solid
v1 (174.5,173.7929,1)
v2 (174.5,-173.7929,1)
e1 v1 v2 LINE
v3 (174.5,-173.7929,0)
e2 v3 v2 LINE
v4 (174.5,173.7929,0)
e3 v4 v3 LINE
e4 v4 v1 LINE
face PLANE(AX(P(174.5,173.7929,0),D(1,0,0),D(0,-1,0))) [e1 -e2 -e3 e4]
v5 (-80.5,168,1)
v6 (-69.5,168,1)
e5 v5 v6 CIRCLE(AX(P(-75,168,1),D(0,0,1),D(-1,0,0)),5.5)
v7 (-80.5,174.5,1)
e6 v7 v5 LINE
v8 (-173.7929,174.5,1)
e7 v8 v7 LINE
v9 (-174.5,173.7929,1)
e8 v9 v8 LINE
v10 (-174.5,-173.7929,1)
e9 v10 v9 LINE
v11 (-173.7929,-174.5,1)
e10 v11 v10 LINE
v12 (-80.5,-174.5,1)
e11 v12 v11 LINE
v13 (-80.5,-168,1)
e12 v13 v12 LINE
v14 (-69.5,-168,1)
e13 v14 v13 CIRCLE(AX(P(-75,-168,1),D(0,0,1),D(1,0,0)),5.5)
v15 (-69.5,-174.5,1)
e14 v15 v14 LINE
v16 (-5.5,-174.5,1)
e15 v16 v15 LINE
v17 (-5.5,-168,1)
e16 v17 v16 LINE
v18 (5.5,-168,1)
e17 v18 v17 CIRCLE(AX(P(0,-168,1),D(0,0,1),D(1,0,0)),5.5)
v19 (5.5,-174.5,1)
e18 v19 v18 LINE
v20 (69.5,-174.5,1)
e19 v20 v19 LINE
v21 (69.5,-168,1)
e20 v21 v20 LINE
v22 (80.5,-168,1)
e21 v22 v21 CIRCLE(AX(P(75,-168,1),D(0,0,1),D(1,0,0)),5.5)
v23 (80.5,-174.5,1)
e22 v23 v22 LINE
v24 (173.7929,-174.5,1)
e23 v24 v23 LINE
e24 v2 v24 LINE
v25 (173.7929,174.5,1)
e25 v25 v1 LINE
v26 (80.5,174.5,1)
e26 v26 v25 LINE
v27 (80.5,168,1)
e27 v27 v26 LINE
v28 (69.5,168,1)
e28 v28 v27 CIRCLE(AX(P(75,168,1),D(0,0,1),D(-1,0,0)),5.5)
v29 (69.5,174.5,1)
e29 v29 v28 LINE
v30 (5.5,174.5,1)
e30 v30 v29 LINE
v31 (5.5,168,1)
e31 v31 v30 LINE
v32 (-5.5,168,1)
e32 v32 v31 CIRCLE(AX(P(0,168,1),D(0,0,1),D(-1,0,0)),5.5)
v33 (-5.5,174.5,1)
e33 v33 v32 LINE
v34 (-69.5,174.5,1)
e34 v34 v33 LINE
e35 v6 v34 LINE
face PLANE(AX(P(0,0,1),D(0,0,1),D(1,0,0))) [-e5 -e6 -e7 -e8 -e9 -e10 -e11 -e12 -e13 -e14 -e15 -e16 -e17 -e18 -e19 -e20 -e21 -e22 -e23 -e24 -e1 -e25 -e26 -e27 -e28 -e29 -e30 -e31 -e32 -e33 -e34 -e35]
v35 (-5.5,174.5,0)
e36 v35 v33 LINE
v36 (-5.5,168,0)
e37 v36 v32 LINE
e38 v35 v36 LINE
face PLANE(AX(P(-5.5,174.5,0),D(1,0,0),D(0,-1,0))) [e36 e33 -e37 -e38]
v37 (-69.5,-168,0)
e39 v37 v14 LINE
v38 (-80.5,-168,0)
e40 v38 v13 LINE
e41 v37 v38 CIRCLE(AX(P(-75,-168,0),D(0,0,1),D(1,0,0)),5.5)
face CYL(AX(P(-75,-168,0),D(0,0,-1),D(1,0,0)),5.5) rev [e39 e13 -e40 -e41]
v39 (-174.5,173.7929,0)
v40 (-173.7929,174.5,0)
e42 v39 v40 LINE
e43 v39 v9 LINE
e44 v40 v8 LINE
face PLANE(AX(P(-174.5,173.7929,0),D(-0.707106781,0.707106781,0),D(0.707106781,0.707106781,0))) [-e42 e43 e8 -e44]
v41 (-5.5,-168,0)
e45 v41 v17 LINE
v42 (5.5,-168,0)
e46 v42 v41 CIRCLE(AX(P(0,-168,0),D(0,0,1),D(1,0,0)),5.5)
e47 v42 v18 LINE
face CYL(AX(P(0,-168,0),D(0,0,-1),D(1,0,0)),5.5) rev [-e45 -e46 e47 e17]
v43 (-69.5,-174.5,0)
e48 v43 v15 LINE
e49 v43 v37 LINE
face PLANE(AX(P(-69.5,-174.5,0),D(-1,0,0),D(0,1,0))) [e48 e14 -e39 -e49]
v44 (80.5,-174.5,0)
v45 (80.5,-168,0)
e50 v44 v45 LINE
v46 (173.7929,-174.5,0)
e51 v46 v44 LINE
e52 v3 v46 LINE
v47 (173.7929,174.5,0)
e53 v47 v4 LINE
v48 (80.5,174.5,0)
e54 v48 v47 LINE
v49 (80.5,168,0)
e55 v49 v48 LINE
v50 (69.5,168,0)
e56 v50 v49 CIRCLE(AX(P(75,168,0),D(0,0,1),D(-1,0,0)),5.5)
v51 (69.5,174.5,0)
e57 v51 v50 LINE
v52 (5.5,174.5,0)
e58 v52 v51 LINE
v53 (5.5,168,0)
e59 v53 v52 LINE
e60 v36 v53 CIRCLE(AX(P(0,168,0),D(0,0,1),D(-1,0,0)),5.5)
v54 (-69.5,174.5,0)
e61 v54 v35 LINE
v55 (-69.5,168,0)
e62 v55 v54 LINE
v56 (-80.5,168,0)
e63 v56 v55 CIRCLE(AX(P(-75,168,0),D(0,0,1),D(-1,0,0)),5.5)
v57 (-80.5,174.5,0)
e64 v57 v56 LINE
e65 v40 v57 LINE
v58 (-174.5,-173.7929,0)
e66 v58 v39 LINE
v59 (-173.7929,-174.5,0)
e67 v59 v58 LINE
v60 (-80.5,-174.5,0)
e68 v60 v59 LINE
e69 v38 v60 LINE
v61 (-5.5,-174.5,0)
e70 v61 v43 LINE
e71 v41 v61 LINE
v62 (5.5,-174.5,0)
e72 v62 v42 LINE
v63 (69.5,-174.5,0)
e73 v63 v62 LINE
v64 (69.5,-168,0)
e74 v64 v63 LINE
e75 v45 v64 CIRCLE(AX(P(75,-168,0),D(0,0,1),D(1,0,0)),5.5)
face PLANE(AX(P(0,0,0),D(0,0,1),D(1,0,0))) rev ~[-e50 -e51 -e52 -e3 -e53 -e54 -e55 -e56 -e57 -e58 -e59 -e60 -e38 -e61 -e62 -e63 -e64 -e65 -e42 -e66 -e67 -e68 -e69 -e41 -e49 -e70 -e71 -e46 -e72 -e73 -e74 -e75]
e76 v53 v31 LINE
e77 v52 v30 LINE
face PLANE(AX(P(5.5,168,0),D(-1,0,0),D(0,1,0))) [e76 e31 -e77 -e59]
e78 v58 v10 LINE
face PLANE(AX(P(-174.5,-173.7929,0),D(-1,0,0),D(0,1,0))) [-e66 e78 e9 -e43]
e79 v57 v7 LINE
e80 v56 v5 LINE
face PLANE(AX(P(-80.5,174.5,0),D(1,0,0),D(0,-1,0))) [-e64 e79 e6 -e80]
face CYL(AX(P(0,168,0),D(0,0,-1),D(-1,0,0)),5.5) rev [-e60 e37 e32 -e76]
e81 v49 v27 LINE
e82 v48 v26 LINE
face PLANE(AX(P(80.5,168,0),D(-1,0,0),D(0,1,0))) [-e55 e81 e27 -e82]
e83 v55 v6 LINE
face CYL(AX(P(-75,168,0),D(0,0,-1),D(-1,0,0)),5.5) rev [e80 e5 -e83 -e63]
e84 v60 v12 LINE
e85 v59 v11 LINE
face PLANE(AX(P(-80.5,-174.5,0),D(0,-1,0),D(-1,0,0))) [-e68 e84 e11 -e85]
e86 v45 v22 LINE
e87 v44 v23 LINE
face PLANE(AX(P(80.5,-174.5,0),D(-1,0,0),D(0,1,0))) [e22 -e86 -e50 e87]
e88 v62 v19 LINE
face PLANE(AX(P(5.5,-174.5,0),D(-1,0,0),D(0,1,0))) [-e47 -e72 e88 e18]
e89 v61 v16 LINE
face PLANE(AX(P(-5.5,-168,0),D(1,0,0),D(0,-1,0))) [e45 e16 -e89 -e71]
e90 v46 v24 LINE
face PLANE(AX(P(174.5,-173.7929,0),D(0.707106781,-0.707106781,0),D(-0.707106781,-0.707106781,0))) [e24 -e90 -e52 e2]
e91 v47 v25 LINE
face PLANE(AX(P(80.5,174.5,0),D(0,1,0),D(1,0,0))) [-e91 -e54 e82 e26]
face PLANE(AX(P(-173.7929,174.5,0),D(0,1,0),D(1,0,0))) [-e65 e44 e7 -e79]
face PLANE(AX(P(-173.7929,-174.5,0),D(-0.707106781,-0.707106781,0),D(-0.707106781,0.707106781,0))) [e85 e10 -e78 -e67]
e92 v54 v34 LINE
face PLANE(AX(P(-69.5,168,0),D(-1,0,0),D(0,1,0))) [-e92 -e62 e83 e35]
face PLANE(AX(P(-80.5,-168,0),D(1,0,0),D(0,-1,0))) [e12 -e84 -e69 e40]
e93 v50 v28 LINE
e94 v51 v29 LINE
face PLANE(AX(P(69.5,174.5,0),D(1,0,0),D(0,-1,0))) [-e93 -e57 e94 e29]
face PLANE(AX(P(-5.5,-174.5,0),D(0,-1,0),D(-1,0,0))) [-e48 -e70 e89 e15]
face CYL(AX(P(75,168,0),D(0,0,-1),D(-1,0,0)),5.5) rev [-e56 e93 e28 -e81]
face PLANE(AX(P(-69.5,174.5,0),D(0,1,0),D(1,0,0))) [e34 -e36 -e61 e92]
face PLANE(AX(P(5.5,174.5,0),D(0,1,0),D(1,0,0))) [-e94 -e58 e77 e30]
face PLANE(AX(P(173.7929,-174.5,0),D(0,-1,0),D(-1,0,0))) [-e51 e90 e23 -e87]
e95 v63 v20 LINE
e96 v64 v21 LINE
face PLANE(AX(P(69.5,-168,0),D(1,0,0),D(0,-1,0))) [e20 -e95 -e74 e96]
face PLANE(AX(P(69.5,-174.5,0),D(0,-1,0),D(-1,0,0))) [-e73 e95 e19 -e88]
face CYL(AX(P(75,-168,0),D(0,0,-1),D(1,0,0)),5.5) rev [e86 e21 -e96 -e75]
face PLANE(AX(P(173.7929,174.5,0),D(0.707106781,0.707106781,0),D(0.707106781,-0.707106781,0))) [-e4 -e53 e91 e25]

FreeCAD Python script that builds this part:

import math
import FreeCAD as App
import Part
import Sketcher

V = App.Vector

doc = App.newDocument("Part")
body = doc.addObject("PartDesign::Body", "Body")

# Sketch on XY plane
sketch1 = body.newObject("Sketcher::SketchObject", "Sketch")
sketch1.AttachmentSupport = (doc.getObject("XY_Plane"), [""])
sketch1.MapMode = "FlatFace"
sketch1.addGeometry([
    Part.LineSegment(V(174.5, -173.8, 0), V(174.5, 173.8, 0)),  # 0
    Part.LineSegment(V(174.5, 173.8, 0), V(173.8, 174.5, 0)),  # 1
    Part.LineSegment(V(173.8, 174.5, 0), V(80.5, 174.5, 0)),  # 2
    Part.LineSegment(V(80.5, 174.5, 0), V(80.5, 168, 0)),  # 3
    Part.ArcOfCircle(Part.Circle(V(75, 168, 0), V(0, 0, 1), 5.5), math.radians(180), math.radians(360)),  # 4
    Part.LineSegment(V(69.5, 168, 0), V(69.5, 174.5, 0)),  # 5
    Part.LineSegment(V(69.5, 174.5, 0), V(5.5, 174.5, 0)),  # 6
    Part.LineSegment(V(5.5, 174.5, 0), V(5.5, 168, 0)),  # 7
    Part.ArcOfCircle(Part.Circle(V(0, 168, 0), V(0, 0, 1), 5.5), math.radians(180), math.radians(360)),  # 8
    Part.LineSegment(V(-5.5, 168, 0), V(-5.5, 174.5, 0)),  # 9
    Part.LineSegment(V(-5.5, 174.5, 0), V(-69.5, 174.5, 0)),  # 10
    Part.LineSegment(V(-69.5, 174.5, 0), V(-69.5, 168, 0)),  # 11
    Part.ArcOfCircle(Part.Circle(V(-75, 168, 0), V(0, 0, 1), 5.5), math.radians(180), math.radians(360)),  # 12
    Part.LineSegment(V(-80.5, 168, 0), V(-80.5, 174.5, 0)),  # 13
    Part.LineSegment(V(-80.5, 174.5, 0), V(-173.8, 174.5, 0)),  # 14
    Part.LineSegment(V(-173.8, 174.5, 0), V(-174.5, 173.8, 0)),  # 15
    Part.LineSegment(V(-174.5, 173.8, 0), V(-174.5, -173.8, 0)),  # 16
    Part.LineSegment(V(-174.5, -173.8, 0), V(-173.8, -174.5, 0)),  # 17
    Part.LineSegment(V(-173.8, -174.5, 0), V(-80.5, -174.5, 0)),  # 18
    Part.LineSegment(V(-80.5, -174.5, 0), V(-80.5, -168, 0)),  # 19
    Part.ArcOfCircle(Part.Circle(V(-75, -168, 0), V(0, 0, 1), 5.5), math.radians(0), math.radians(180)),  # 20
    Part.LineSegment(V(-69.5, -168, 0), V(-69.5, -174.5, 0)),  # 21
    Part.LineSegment(V(-69.5, -174.5, 0), V(-5.5, -174.5, 0)),  # 22
    Part.LineSegment(V(-5.5, -174.5, 0), V(-5.5, -168, 0)),  # 23
    Part.ArcOfCircle(Part.Circle(V(0, -168, 0), V(0, 0, 1), 5.5), math.radians(0), math.radians(180)),  # 24
    Part.LineSegment(V(5.5, -168, 0), V(5.5, -174.5, 0)),  # 25
    Part.LineSegment(V(5.5, -174.5, 0), V(69.5, -174.5, 0)),  # 26
    Part.LineSegment(V(69.5, -174.5, 0), V(69.5, -168, 0)),  # 27
    Part.ArcOfCircle(Part.Circle(V(75, -168, 0), V(0, 0, 1), 5.5), math.radians(0), math.radians(180)),  # 28
    Part.LineSegment(V(80.5, -168, 0), V(80.5, -174.5, 0)),  # 29
    Part.LineSegment(V(80.5, -174.5, 0), V(173.8, -174.5, 0)),  # 30
    Part.LineSegment(V(173.8, -174.5, 0), V(174.5, -173.8, 0)),  # 31
], False)
sketch1.addConstraint([
    Sketcher.Constraint("Coincident", 0, 2, 1, 1),
    Sketcher.Constraint("Coincident", 1, 2, 2, 1),
    Sketcher.Constraint("Coincident", 2, 2, 3, 1),
    Sketcher.Constraint("Tangent", 3, 2, 4, 2),
    Sketcher.Constraint("Tangent", 4, 1, 5, 1),
    Sketcher.Constraint("Coincident", 5, 2, 6, 1),
    Sketcher.Constraint("Coincident", 6, 2, 7, 1),
    Sketcher.Constraint("Tangent", 7, 2, 8, 2),
    Sketcher.Constraint("Tangent", 8, 1, 9, 1),
    Sketcher.Constraint("Coincident", 9, 2, 10, 1),
    Sketcher.Constraint("Coincident", 10, 2, 11, 1),
    Sketcher.Constraint("Tangent", 11, 2, 12, 2),
    Sketcher.Constraint("Tangent", 12, 1, 13, 1),
    Sketcher.Constraint("Coincident", 13, 2, 14, 1),
    Sketcher.Constraint("Coincident", 14, 2, 15, 1),
    Sketcher.Constraint("Coincident", 15, 2, 16, 1),
    Sketcher.Constraint("Coincident", 16, 2, 17, 1),
    Sketcher.Constraint("Coincident", 17, 2, 18, 1),
    Sketcher.Constraint("Coincident", 18, 2, 19, 1),
    Sketcher.Constraint("Tangent", 19, 2, 20, 2),
    Sketcher.Constraint("Tangent", 20, 1, 21, 1),
    Sketcher.Constraint("Coincident", 21, 2, 22, 1),
    Sketcher.Constraint("Coincident", 22, 2, 23, 1),
    Sketcher.Constraint("Tangent", 23, 2, 24, 2),
    Sketcher.Constraint("Tangent", 24, 1, 25, 1),
    Sketcher.Constraint("Coincident", 25, 2, 26, 1),
    Sketcher.Constraint("Coincident", 26, 2, 27, 1),
    Sketcher.Constraint("Tangent", 27, 2, 28, 2),
    Sketcher.Constraint("Tangent", 28, 1, 29, 1),
    Sketcher.Constraint("Coincident", 29, 2, 30, 1),
    Sketcher.Constraint("Coincident", 30, 2, 31, 1),
    Sketcher.Constraint("Coincident", 31, 2, 0, 1),
    Sketcher.Constraint("Vertical", 0),
    Sketcher.Constraint("Horizontal", 2),
    Sketcher.Constraint("Vertical", 3),
    Sketcher.Constraint("Vertical", 5),
    Sketcher.Constraint("Horizontal", 6),
    Sketcher.Constraint("Vertical", 7),
    Sketcher.Constraint("Vertical", 9),
    Sketcher.Constraint("Horizontal", 10),
    Sketcher.Constraint("Vertical", 11),
    Sketcher.Constraint("Vertical", 13),
    Sketcher.Constraint("Horizontal", 14),
    Sketcher.Constraint("Vertical", 16),
    Sketcher.Constraint("Horizontal", 18),
    Sketcher.Constraint("Vertical", 19),
    Sketcher.Constraint("Vertical", 21),
    Sketcher.Constraint("Horizontal", 22),
    Sketcher.Constraint("Vertical", 23),
    Sketcher.Constraint("Vertical", 25),
    Sketcher.Constraint("Horizontal", 26),
    Sketcher.Constraint("Vertical", 27),
    Sketcher.Constraint("Vertical", 29),
    Sketcher.Constraint("Horizontal", 30),
    Sketcher.Constraint("Equal", 4, 8),
    Sketcher.Constraint("Equal", 8, 12),
    Sketcher.Constraint("Equal", 12, 20),
    Sketcher.Constraint("Equal", 20, 24),
    Sketcher.Constraint("Equal", 24, 28),
    Sketcher.Constraint("Symmetric", 4, 3, 20, 3, -1, 1),
    Sketcher.Constraint("Symmetric", 8, 3, 24, 3, -1, 1),
    Sketcher.Constraint("Symmetric", 12, 3, 28, 3, -1, 1),
    Sketcher.Constraint("Symmetric", 0, 2, 16, 2, -1, 1),
    Sketcher.Constraint("Symmetric", 1, 2, 17, 2, -1, 1),
    Sketcher.Constraint("Symmetric", 14, 2, 30, 2, -1, 1),
    Sketcher.Constraint("Symmetric", 4, 3, 12, 3, -2),
    Sketcher.Constraint("Symmetric", 6, 2, 9, 2, -2),
    Sketcher.Constraint("Symmetric", 1, 2, 14, 2, -2),
    Sketcher.Constraint("Perpendicular", 1, 15),
    Sketcher.Constraint("Perpendicular", 17, 31),
    Sketcher.Constraint("Horizontal", 4, 3, 8, 3),
    Sketcher.Constraint("Horizontal", 2, 2, 5, 2),
    Sketcher.Constraint("Horizontal", 0, 2, 15, 2),
    Sketcher.Constraint("Horizontal", 18, 2, 21, 2),
    Sketcher.Constraint("Horizontal", 22, 2, 25, 2),
    Sketcher.Constraint("Radius", 4, 5.5),
    Sketcher.Constraint("DistanceX", 6, 2, 6, 1, 64.0),
    Sketcher.Constraint("Distance", 1, 1.0),
    Sketcher.Constraint("DistanceY", 3, 2, 3, 1, 6.5),
    Sketcher.Constraint("DistanceY", -1, 1, 4, 3, 168.0),
    Sketcher.Constraint("DistanceX", 2, 2, 0, 2, 94.0),
])
pad1 = body.newObject("PartDesign::Pad", "Pad")
pad1.Profile = sketch1
pad1.Length = 1

doc.recompute()
